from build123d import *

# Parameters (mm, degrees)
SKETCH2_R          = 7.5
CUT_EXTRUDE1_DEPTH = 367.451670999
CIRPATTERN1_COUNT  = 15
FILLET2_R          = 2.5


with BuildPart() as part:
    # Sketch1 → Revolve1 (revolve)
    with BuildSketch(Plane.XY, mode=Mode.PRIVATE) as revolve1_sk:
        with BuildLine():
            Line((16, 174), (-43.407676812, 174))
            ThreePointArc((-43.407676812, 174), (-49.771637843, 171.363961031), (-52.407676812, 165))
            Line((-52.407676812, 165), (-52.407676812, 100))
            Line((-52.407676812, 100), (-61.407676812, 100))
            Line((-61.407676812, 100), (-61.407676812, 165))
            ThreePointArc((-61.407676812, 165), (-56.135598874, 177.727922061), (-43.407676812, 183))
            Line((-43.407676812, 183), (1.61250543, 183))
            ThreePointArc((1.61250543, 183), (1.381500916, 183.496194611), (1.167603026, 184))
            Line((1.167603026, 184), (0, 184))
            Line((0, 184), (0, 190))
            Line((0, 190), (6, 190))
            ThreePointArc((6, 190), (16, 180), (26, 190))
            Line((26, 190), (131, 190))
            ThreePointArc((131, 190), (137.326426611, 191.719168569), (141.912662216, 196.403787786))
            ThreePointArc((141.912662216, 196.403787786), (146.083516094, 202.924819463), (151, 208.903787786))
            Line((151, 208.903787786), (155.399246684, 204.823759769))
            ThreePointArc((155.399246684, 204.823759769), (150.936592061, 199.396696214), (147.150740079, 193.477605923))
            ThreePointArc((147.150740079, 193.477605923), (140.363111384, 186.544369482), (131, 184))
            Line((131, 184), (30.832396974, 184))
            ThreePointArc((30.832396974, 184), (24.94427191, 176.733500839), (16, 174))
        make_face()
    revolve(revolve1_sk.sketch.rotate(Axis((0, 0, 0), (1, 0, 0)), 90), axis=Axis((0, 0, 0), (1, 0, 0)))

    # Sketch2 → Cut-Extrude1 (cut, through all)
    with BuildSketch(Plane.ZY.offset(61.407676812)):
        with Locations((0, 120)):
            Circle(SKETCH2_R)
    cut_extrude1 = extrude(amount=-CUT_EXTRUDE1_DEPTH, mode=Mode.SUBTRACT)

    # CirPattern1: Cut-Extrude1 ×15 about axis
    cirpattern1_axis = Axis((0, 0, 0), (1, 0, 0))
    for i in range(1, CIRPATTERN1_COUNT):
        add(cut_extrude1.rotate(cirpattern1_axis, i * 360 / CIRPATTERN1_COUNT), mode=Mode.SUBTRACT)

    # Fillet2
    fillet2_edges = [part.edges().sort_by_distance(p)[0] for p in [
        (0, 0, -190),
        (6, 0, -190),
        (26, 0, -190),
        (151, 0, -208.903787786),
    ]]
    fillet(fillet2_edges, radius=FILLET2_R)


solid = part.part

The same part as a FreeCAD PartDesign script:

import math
import FreeCAD as App
import Part
import Sketcher

V = App.Vector


def edges_at(feature, points):
    """Names of the edges that pass closest to the given points."""
    edges = feature.Shape.Edges
    near = lambda p: min(range(len(edges)), key=lambda i: edges[i].distToShape(Part.Vertex(*p))[0])
    return sorted({f"Edge{near(p) + 1}" for p in points})

doc = App.newDocument("Part")
body = doc.addObject("PartDesign::Body", "Body")

# Sketch on XY plane
sketch1 = body.newObject("Sketcher::SketchObject", "Sketch")
sketch1.AttachmentSupport = (doc.getObject("XY_Plane"), [""])
sketch1.MapMode = "FlatFace"
sketch1.addGeometry([
    Part.LineSegment(V(-43.407677, 174, 0), V(16, 174, 0)),  # 0
    Part.ArcOfCircle(Part.Circle(V(16, 190, 0), V(0, 0, 1), 16), math.radians(-90), math.radians(-22.024313)),  # 1
    Part.LineSegment(V(30.832397, 184, 0), V(131, 184, 0)),  # 2
    Part.ArcOfCircle(Part.Circle(V(131, 202.5, 0), V(0, 0, 1), 18.5), math.radians(-90), math.radians(-29.189323)),  # 3
    Part.ArcOfCircle(Part.Circle(V(198.658506, 164.703484, 0), V(0, 0, 1), 59), math.radians(137.155992), math.radians(150.810677)),  # 4
    Part.LineSegment(V(155.399247, 204.82376, 0), V(151, 208.903788, 0)),  # 5
    Part.ArcOfCircle(Part.Circle(V(198.658506, 164.703484, 0), V(0, 0, 1), 65), math.radians(137.155992), math.radians(150.810677)),  # 6
    Part.ArcOfCircle(Part.Circle(V(131, 202.5, 0), V(0, 0, 1), 12.5), math.radians(-90), math.radians(-29.189323)),  # 7
    Part.LineSegment(V(131, 190, 0), V(26, 190, 0)),  # 8
    Part.ArcOfCircle(Part.Circle(V(16, 190, 0), V(0, 0, 1), 10), math.radians(180), math.radians(360)),  # 9
    Part.LineSegment(V(6, 190, 0), V(0, 190, 0)),  # 10
    Part.LineSegment(V(0, 190, 0), V(0, 184, 0)),  # 11
    Part.LineSegment(V(0, 184, 0), V(1.167603, 184, 0)),  # 12
    Part.ArcOfCircle(Part.Circle(V(16, 190, 0), V(0, 0, 1), 16), math.radians(-157.975687), math.radians(-154.05552)),  # 13
    Part.LineSegment(V(1.612505, 183, 0), V(-43.407677, 183, 0)),  # 14
    Part.ArcOfCircle(Part.Circle(V(-43.407677, 165, 0), V(0, 0, 1), 18), math.radians(90), math.radians(180)),  # 15
    Part.LineSegment(V(-61.407677, 165, 0), V(-61.407677, 100, 0)),  # 16
    Part.LineSegment(V(-61.407677, 100, 0), V(-52.407677, 100, 0)),  # 17
    Part.LineSegment(V(-52.407677, 100, 0), V(-52.407677, 165, 0)),  # 18
    Part.ArcOfCircle(Part.Circle(V(-43.407677, 165, 0), V(0, 0, 1), 9), math.radians(90), math.radians(180)),  # 19
], False)
sketch1.addConstraint([
    Sketcher.Constraint("Tangent", 0, 2, 1, 1),
    Sketcher.Constraint("Coincident", 1, 2, 2, 1),
    Sketcher.Constraint("Tangent", 2, 2, 3, 1),
    Sketcher.Constraint("Tangent", 3, 2, 4, 2),
    Sketcher.Constraint("Coincident", 4, 1, 5, 1),
    Sketcher.Constraint("Coincident", 5, 2, 6, 1),
    Sketcher.Constraint("Tangent", 6, 2, 7, 2),
    Sketcher.Constraint("Tangent", 7, 1, 8, 1),
    Sketcher.Constraint("Coincident", 8, 2, 9, 2),
    Sketcher.Constraint("Coincident", 9, 1, 10, 1),
    Sketcher.Constraint("Coincident", 10, 2, 11, 1),
    Sketcher.Constraint("Coincident", 11, 2, 12, 1),
    Sketcher.Constraint("Coincident", 12, 2, 13, 1),
    Sketcher.Constraint("Coincident", 13, 2, 14, 1),
    Sketcher.Constraint("Tangent", 14, 2, 15, 1),
    Sketcher.Constraint("Tangent", 15, 2, 16, 1),
    Sketcher.Constraint("Coincident", 16, 2, 17, 1),
    Sketcher.Constraint("Coincident", 17, 2, 18, 1),
    Sketcher.Constraint("Tangent", 18, 2, 19, 2),
    Sketcher.Constraint("Tangent", 19, 1, 0, 1),
    Sketcher.Constraint("Horizontal", 0),
    Sketcher.Constraint("Horizontal", 2),
    Sketcher.Constraint("Horizontal", 8),
    Sketcher.Constraint("Horizontal", 10),
    Sketcher.Constraint("Vertical", 11),
    Sketcher.Constraint("Horizontal", 12),
    Sketcher.Constraint("Horizontal", 14),
    Sketcher.Constraint("Vertical", 16),
    Sketcher.Constraint("Horizontal", 17),
    Sketcher.Constraint("Vertical", 18),
    Sketcher.Constraint("Coincident", 6, 3, 4, 3),
    Sketcher.Constraint("Coincident", 7, 3, 3, 3),
    Sketcher.Constraint("Coincident", 9, 3, 1, 3),
    Sketcher.Constraint("Coincident", 13, 3, 1, 3),
    Sketcher.Constraint("Coincident", 19, 3, 15, 3),
    Sketcher.Constraint("Equal", 1, 13),
    Sketcher.Constraint("PointOnObject", 10, 2, -2),
    Sketcher.Constraint("Horizontal", 13, 3, 7, 1),
    Sketcher.Constraint("Horizontal", 8, 2, 9, 1),
    Sketcher.Constraint("Horizontal", 2, 2, 11, 2),
    Sketcher.Constraint("Equal", 10, 11),
    Sketcher.Constraint("Radius", 1, 16.0),
    Sketcher.Constraint("Radius", 4, 59.0),
    Sketcher.Constraint("Radius", 6, 65.0),
    Sketcher.Constraint("Radius", 9, 10.0),
    Sketcher.Constraint("Radius", 15, 18.0),
    Sketcher.Constraint("Radius", 19, 9.0),
    Sketcher.Constraint("Radius", 3, 18.5),
    Sketcher.Constraint("DistanceX", 8, 2, 8, 1, 105.0),
    Sketcher.Constraint("DistanceY", 16, 2, 16, 1, 65.0),
    Sketcher.Constraint("DistanceY", -1, 1, 1, 3, 190.0),
    Sketcher.Constraint("DistanceX", -1, 1, 5, 2, 151.0),
    Sketcher.Constraint("DistanceY", 6, 2, 5, 2, 12.5),
    Sketcher.Constraint("DistanceX", 0, 1, 0, 2, 59.407677),
    Sketcher.Constraint("DistanceY", -1, 1, 4, 1, 204.82376),
])
revolution = body.newObject("PartDesign::Revolution", "Revolution")
revolution.Profile = sketch1
revolution.ReferenceAxis = (sketch1, ["H_Axis"])
revolution.Angle = 360

# Sketch on YZ plane
sketch2 = body.newObject("Sketcher::SketchObject", "Sketch001")
sketch2.AttachmentSupport = (doc.getObject("YZ_Plane"), [""])
sketch2.MapMode = "FlatFace"
sketch2.AttachmentOffset = App.Placement(V(0, 0, -61.407677), App.Rotation())
sketch2.addGeometry(Part.Circle(V(120, 0, 0), V(0, 0, 1), 7.5), False)
sketch2.addConstraint([
    Sketcher.Constraint("PointOnObject", 0, 3, -1),
    Sketcher.Constraint("Diameter", 0, 15.0),
    Sketcher.Constraint("DistanceX", -1, 1, 0, 3, 120.0),
])
pocket1 = body.newObject("PartDesign::Pocket", "Pocket")
pocket1.Profile = sketch2
pocket1.Type = "ThroughAll"
pocket1.Reversed = True
doc.recompute()

polarpattern = body.newObject("PartDesign::PolarPattern", "PolarPattern")
polarpattern.Originals = [pocket1]
polarpattern.Axis = (doc.getObject("X_Axis"), [""])
polarpattern.Angle = 360
polarpattern.Occurrences = 15
body.Tip = polarpattern
doc.recompute()

fillet = body.newObject("PartDesign::Fillet", "Fillet")
fillet.Base = (polarpattern, edges_at(polarpattern, [
    (0, 0, -190),
    (6, 0, -190),
    (26, 0, -190),
    (151, 0, -208.904),
]))
fillet.Radius = 2.5

doc.recompute()
